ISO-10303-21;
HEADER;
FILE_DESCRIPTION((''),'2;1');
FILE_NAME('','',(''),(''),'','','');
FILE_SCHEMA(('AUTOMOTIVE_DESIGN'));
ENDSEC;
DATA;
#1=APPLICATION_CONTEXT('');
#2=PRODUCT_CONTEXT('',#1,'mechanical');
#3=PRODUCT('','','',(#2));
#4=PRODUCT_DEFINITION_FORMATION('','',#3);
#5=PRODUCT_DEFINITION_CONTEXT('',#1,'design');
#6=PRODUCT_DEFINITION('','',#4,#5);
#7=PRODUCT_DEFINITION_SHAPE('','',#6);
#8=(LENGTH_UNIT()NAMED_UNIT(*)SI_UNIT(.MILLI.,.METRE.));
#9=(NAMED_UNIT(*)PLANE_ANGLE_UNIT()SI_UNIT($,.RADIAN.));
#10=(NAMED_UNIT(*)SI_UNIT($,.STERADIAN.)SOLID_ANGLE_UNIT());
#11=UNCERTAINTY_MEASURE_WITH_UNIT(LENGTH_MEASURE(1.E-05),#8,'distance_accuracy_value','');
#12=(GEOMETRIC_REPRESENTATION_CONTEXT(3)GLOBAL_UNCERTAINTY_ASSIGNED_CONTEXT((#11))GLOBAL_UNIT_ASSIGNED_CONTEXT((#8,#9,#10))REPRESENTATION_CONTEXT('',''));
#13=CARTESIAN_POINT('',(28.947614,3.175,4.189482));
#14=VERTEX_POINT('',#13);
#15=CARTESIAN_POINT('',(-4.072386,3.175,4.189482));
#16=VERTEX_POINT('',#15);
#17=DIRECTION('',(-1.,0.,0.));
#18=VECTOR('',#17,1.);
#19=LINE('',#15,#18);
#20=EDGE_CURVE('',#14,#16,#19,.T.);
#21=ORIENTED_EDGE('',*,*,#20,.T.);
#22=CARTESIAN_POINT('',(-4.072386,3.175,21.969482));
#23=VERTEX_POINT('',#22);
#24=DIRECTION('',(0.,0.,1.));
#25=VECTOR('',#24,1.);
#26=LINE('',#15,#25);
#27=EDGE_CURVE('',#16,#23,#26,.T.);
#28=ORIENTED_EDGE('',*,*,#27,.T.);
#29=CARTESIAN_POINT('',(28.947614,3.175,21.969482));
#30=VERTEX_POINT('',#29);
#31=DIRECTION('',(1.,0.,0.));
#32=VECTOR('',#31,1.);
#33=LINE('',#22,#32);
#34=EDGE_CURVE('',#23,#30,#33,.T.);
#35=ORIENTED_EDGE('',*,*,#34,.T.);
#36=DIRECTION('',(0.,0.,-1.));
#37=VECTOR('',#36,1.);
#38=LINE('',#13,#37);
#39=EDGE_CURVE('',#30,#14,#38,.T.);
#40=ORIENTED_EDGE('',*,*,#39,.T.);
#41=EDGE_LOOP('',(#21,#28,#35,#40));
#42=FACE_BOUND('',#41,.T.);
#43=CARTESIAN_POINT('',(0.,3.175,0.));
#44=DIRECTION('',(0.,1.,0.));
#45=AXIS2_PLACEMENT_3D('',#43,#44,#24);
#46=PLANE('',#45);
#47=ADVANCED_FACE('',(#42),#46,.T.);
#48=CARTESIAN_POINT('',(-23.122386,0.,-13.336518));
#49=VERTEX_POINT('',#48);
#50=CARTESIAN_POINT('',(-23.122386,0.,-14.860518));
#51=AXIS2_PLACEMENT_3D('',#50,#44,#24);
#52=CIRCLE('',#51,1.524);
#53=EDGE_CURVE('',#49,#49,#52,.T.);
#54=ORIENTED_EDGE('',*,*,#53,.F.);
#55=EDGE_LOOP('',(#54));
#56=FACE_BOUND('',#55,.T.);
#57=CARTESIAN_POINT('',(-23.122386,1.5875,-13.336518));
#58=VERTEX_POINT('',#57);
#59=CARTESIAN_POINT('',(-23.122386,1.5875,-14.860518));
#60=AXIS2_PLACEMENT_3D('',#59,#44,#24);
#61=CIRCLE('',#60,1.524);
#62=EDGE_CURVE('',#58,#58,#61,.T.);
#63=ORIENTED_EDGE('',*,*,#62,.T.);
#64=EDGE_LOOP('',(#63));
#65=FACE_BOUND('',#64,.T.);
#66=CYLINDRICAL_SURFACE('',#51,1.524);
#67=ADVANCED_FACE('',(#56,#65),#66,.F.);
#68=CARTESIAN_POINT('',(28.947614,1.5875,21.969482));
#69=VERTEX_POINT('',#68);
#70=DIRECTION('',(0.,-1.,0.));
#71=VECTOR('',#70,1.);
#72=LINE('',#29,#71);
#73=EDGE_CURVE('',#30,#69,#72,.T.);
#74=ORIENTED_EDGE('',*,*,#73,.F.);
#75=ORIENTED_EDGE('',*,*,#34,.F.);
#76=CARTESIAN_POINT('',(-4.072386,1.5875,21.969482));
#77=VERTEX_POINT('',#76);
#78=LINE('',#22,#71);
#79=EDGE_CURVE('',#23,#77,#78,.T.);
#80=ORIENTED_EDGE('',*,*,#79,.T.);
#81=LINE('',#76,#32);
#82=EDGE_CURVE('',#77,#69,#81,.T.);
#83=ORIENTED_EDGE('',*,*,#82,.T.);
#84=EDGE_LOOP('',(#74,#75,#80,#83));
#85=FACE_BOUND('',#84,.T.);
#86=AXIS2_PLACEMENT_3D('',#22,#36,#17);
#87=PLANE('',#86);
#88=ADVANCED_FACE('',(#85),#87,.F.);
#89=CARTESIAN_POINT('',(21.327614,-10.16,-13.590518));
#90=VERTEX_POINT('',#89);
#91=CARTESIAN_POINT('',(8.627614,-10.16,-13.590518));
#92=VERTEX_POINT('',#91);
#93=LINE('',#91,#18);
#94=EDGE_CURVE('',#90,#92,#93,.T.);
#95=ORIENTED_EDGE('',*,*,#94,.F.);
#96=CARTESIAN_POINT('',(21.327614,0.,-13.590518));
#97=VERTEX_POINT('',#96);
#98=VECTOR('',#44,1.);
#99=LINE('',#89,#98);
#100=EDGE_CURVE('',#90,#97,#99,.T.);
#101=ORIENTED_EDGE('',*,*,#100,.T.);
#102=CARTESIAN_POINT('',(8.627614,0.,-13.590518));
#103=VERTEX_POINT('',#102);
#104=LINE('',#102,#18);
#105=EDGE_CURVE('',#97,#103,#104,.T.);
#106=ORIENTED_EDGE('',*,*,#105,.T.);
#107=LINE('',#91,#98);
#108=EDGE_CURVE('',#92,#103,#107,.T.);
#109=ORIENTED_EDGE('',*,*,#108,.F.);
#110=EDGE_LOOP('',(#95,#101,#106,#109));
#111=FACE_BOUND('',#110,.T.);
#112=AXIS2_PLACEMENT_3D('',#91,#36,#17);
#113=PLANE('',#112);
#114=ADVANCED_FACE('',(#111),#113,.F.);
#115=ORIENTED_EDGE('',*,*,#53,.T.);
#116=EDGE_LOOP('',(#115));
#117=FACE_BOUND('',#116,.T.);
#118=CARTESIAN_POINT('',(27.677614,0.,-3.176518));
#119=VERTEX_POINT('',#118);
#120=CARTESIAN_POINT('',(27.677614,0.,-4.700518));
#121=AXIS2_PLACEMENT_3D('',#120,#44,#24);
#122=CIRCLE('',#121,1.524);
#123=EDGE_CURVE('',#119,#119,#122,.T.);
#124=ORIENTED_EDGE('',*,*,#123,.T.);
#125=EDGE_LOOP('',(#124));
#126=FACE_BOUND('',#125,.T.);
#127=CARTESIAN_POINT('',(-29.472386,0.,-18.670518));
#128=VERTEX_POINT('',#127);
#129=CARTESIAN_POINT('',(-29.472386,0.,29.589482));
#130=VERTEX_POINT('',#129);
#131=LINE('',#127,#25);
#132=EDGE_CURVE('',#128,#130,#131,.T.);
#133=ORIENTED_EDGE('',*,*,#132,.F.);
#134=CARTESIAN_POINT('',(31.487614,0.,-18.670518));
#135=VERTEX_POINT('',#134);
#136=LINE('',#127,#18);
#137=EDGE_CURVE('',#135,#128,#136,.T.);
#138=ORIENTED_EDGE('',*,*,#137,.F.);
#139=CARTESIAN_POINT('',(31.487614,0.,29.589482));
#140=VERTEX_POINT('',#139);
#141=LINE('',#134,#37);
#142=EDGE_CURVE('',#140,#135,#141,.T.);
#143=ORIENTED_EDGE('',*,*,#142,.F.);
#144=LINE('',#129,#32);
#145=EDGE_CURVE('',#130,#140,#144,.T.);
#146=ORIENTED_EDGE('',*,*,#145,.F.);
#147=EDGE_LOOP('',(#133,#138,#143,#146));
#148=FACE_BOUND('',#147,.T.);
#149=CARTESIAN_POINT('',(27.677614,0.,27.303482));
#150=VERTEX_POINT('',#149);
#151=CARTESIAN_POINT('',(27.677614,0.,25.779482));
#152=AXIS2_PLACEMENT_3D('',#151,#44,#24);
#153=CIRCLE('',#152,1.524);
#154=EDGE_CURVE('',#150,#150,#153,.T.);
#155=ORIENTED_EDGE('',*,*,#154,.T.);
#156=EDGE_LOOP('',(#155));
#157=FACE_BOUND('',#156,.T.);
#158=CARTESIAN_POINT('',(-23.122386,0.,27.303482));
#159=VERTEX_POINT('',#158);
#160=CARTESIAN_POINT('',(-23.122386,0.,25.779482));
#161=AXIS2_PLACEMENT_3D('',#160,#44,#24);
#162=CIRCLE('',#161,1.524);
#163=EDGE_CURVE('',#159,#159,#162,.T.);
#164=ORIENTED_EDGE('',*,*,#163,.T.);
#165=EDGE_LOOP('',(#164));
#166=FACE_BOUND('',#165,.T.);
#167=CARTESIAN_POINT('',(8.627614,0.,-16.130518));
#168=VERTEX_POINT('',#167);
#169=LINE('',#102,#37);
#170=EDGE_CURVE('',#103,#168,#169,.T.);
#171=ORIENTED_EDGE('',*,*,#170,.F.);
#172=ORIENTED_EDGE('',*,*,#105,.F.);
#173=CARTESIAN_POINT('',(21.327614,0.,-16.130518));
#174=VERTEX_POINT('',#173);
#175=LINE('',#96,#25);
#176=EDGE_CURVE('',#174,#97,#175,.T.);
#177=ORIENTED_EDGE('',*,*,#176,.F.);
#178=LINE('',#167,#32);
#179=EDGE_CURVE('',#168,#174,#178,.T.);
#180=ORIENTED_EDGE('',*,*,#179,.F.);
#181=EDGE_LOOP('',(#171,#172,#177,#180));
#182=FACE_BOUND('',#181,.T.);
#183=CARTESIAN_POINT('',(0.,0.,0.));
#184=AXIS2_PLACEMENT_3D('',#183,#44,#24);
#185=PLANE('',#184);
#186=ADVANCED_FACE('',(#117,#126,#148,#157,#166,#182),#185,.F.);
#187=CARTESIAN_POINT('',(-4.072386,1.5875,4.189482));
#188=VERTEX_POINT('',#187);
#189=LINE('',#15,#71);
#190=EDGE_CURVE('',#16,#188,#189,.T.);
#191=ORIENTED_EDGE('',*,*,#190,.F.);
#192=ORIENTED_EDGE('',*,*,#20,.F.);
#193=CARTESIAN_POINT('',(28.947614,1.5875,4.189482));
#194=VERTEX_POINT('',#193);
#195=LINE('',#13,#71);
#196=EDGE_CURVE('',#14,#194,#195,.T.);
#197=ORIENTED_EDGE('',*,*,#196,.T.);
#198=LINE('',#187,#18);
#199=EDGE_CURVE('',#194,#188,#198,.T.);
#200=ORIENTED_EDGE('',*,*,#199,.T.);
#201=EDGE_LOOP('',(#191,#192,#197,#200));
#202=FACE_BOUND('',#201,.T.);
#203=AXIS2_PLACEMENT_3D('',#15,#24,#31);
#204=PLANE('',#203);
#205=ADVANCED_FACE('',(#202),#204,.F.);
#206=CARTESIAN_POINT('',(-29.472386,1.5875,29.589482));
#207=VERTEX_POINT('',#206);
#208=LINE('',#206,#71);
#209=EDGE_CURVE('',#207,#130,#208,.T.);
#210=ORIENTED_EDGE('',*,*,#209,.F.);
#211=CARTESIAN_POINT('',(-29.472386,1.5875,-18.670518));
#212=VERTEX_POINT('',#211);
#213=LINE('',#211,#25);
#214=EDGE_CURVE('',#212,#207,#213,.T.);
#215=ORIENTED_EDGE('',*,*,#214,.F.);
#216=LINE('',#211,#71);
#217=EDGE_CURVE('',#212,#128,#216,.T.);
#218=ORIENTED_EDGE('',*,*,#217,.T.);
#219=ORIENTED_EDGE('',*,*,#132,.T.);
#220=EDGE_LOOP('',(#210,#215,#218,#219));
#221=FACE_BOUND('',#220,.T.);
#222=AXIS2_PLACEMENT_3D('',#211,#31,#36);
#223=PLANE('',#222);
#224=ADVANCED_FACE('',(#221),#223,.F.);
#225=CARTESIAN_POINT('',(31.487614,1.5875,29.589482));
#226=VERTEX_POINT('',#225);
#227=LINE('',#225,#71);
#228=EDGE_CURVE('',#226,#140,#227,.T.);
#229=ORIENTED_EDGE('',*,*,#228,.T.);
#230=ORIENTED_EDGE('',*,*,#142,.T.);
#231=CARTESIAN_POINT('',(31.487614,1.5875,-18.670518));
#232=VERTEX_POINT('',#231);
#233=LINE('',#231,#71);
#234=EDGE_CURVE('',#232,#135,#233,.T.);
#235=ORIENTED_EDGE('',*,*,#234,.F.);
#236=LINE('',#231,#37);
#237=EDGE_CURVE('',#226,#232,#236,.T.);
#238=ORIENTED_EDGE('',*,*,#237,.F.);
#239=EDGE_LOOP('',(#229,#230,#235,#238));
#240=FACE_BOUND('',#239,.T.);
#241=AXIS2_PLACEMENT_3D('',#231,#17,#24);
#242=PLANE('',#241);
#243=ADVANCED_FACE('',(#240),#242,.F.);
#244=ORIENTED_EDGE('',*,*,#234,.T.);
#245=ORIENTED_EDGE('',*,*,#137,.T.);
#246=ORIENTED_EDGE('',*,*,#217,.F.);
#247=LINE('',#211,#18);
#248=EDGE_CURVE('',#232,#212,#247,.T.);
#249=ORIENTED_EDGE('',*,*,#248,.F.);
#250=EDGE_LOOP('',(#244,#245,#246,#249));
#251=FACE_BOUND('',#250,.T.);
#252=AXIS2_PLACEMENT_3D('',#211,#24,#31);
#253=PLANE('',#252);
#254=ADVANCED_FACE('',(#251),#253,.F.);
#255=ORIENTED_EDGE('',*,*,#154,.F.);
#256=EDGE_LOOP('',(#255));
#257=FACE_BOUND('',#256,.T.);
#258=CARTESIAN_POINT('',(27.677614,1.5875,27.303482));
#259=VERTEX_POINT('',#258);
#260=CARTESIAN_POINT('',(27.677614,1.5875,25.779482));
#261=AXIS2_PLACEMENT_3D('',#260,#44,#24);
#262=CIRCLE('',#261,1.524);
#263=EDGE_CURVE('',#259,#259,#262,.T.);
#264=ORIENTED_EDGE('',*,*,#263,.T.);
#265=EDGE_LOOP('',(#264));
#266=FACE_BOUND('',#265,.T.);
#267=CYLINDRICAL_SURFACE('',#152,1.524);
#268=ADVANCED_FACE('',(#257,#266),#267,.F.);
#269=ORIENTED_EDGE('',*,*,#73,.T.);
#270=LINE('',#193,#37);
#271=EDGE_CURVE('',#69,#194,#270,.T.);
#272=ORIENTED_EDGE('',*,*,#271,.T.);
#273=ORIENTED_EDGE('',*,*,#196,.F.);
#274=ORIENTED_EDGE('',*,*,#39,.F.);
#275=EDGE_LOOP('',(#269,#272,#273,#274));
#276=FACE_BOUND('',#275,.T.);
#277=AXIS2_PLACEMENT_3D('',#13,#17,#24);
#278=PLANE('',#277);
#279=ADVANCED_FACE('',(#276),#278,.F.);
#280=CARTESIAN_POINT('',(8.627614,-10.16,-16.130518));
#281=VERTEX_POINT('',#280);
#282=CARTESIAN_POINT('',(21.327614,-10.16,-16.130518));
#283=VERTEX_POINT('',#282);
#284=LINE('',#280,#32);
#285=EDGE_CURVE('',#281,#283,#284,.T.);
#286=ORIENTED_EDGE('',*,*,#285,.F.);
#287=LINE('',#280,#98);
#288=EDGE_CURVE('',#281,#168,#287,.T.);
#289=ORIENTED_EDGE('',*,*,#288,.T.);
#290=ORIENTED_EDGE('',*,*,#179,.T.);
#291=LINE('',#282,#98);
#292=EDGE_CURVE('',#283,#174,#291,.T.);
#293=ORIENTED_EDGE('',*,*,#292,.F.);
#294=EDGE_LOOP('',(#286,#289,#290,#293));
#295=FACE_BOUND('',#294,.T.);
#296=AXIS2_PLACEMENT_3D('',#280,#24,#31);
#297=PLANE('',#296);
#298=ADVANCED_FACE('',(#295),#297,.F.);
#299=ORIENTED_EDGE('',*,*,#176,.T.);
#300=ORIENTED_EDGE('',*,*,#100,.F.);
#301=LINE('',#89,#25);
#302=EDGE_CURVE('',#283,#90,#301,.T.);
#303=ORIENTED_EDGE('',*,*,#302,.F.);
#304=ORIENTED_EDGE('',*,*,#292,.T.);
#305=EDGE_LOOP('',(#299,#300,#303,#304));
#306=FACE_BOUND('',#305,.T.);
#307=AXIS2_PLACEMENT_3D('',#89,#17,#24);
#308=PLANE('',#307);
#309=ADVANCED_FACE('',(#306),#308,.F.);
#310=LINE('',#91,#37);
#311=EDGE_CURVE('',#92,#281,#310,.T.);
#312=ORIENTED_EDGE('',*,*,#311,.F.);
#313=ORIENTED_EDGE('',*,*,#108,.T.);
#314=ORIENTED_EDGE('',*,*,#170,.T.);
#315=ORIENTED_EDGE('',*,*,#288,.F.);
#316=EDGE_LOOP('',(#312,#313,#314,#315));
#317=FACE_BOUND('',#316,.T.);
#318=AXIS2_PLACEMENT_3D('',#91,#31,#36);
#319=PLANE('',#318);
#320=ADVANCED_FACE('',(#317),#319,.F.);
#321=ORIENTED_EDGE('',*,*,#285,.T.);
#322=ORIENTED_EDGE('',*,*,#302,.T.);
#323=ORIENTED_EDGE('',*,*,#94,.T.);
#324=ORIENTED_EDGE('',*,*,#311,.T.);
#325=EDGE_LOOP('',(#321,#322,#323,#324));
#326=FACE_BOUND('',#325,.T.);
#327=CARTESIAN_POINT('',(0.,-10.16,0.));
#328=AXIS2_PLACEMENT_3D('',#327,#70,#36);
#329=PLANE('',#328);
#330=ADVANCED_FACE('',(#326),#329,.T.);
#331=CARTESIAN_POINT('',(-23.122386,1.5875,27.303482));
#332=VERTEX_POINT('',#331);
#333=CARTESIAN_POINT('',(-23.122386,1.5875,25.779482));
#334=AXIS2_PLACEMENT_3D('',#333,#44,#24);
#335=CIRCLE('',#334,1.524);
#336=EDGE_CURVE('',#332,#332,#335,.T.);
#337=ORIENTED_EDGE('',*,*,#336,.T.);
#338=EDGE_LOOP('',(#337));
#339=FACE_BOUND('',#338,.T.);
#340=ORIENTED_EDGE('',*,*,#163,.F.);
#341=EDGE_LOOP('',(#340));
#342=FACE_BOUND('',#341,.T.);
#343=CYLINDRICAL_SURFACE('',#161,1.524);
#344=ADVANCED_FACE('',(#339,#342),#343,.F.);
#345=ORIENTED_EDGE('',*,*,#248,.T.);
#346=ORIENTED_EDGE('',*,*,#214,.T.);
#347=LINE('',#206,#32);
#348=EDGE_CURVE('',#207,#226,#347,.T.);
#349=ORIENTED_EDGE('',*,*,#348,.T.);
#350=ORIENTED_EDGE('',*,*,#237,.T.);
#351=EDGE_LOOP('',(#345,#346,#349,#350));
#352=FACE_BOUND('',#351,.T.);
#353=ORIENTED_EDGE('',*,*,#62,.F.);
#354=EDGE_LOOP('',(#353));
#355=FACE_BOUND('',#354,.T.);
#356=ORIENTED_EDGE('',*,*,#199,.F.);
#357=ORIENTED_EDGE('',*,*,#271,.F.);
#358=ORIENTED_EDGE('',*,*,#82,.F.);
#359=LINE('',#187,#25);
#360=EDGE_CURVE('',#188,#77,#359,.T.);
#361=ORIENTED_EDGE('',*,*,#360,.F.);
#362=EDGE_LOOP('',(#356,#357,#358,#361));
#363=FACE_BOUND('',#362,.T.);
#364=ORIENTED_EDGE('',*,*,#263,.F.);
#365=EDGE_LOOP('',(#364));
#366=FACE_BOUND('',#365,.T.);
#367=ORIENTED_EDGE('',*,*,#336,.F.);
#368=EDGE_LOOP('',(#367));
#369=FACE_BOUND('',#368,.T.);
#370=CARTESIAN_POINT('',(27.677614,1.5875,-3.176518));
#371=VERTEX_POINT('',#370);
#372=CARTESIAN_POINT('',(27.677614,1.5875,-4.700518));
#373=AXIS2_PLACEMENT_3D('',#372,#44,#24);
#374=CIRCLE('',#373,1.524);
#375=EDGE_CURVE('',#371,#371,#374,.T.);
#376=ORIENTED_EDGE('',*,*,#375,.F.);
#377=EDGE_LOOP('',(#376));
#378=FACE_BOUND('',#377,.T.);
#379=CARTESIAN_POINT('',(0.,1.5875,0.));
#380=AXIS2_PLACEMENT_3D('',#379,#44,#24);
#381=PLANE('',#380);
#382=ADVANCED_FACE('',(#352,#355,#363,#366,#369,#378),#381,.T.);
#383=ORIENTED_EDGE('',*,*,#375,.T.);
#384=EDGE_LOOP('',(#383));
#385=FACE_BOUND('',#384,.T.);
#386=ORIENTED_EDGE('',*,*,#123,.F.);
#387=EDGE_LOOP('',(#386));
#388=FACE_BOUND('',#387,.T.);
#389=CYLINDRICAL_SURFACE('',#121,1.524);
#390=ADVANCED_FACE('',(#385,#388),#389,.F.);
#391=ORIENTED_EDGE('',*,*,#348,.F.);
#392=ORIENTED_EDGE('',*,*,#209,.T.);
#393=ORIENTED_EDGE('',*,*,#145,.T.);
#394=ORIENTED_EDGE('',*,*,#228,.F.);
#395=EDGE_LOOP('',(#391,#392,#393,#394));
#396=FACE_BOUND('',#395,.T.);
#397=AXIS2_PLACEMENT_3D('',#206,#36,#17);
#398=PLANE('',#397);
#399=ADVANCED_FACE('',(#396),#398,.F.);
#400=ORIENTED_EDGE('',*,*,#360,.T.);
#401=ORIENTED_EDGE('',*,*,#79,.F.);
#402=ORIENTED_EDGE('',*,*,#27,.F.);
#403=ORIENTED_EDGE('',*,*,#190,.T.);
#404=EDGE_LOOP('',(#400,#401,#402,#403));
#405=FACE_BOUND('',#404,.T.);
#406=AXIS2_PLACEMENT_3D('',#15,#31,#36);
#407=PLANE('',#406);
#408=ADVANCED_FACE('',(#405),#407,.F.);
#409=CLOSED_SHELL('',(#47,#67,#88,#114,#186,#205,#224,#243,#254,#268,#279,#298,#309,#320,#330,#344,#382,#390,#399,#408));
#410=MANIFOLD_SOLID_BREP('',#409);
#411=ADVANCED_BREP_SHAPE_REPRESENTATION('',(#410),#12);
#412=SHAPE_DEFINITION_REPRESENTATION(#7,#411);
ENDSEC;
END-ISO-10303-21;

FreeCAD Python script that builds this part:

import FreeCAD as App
import Part
import Sketcher

V = App.Vector
Q = App.Units.Quantity

doc = App.newDocument("Part")
params = doc.addObject("Spreadsheet::Sheet", "Params")
for row, (alias, value) in enumerate([
    ("sketch1_width", "2.4 in"),
    ("sketch1_height", "1.9 in"),
    ("pad1_length", "0.0625 in"),
    ("sketch2_width", "1.3 in"),
    ("sketch2_height", "0.7 in"),
    ("pad2_length", "0.0625 in"),
    ("sketch3_diameter", "0.12 in"),
    ("sketch4_width", "0.5 in"),
    ("sketch4_height", "0.1 in"),
    ("pad3_length", "0.4 in"),
], start=1):
    params.set(f"A{row}", alias)
    params.set(f"B{row}", "=" + value)
    params.setAlias(f"B{row}", alias)

body = doc.addObject("PartDesign::Body", "Body")

# Sketch on XZ plane
sketch1 = body.newObject("Sketcher::SketchObject", "Sketch")
sketch1.AttachmentSupport = (doc.getObject("XZ_Plane"), [""])
sketch1.MapMode = "FlatFace"
sketch1.addGeometry([
    Part.LineSegment(V(-29.472386, -18.670518, 0), V(-29.472386, 29.589482, 0)),
    Part.LineSegment(V(-29.472386, 29.589482, 0), V(31.487614, 29.589482, 0)),
    Part.LineSegment(V(31.487614, 29.589482, 0), V(31.487614, -18.670518, 0)),
    Part.LineSegment(V(31.487614, -18.670518, 0), V(-29.472386, -18.670518, 0)),
], False)
sketch1.addConstraint([
    Sketcher.Constraint("Coincident", 0, 2, 1, 1),
    Sketcher.Constraint("Coincident", 1, 2, 2, 1),
    Sketcher.Constraint("Coincident", 2, 2, 3, 1),
    Sketcher.Constraint("Coincident", 3, 2, 0, 1),
    Sketcher.Constraint("Vertical", 0),
    Sketcher.Constraint("Horizontal", 1),
    Sketcher.Constraint("Vertical", 2),
    Sketcher.Constraint("Horizontal", 3),
    Sketcher.Constraint("DistanceX", 1, 1, 1, 2, Q("2.4 in")),
    Sketcher.Constraint("DistanceY", 0, 1, 0, 2, Q("1.9 in")),
    Sketcher.Constraint("DistanceX", 0, 2, -1, 1, 29.472386),
    Sketcher.Constraint("DistanceY", -1, 1, 0, 2, 29.589482),
])
sketch1.setExpression("Constraints[8]", "Params.sketch1_width")
sketch1.setExpression("Constraints[9]", "Params.sketch1_height")
pad1 = body.newObject("PartDesign::Pad", "Pad")
pad1.Profile = sketch1
pad1.setExpression("Length", "Params.pad1_length")
pad1.Reversed = True

# Sketch on XZ plane
sketch2 = body.newObject("Sketcher::SketchObject", "Sketch001")
sketch2.AttachmentSupport = (doc.getObject("XZ_Plane"), [""])
sketch2.MapMode = "FlatFace"
sketch2.AttachmentOffset = App.Placement(V(0, 0, -0.0625 * 25.4), App.Rotation())
sketch2.addGeometry([
    Part.LineSegment(V(-4.072386, 4.189482, 0), V(-4.072386, 21.969482, 0)),
    Part.LineSegment(V(-4.072386, 21.969482, 0), V(28.947614, 21.969482, 0)),
    Part.LineSegment(V(28.947614, 21.969482, 0), V(28.947614, 4.189482, 0)),
    Part.LineSegment(V(28.947614, 4.189482, 0), V(-4.072386, 4.189482, 0)),
], False)
sketch2.addConstraint([
    Sketcher.Constraint("Coincident", 0, 2, 1, 1),
    Sketcher.Constraint("Coincident", 1, 2, 2, 1),
    Sketcher.Constraint("Coincident", 2, 2, 3, 1),
    Sketcher.Constraint("Coincident", 3, 2, 0, 1),
    Sketcher.Constraint("Vertical", 0),
    Sketcher.Constraint("Horizontal", 1),
    Sketcher.Constraint("Vertical", 2),
    Sketcher.Constraint("Horizontal", 3),
    Sketcher.Constraint("DistanceX", 1, 1, 1, 2, Q("1.3 in")),
    Sketcher.Constraint("DistanceY", 0, 1, 0, 2, Q("0.7 in")),
    Sketcher.Constraint("DistanceX", 0, 2, -1, 1, 4.072386),
    Sketcher.Constraint("DistanceY", -1, 1, 0, 2, 21.969482),
])
sketch2.setExpression("Constraints[8]", "Params.sketch2_width")
sketch2.setExpression("Constraints[9]", "Params.sketch2_height")
pad2 = body.newObject("PartDesign::Pad", "Pad001")
pad2.Profile = sketch2
pad2.setExpression("Length", "Params.pad2_length")
pad2.Reversed = True

# Sketch on XZ plane
sketch3 = body.newObject("Sketcher::SketchObject", "Sketch002")
sketch3.AttachmentSupport = (doc.getObject("XZ_Plane"), [""])
sketch3.MapMode = "FlatFace"
sketch3.AttachmentOffset = App.Placement(V(0, 0, -0.0625 * 25.4), App.Rotation())
sketch3.addGeometry([
    Part.Circle(V(-23.122386, -14.860518, 0), V(0, 0, 1), 1.524),
    Part.Circle(V(27.677614, -4.700518, 0), V(0, 0, 1), 1.524),
    Part.Circle(V(-23.122386, 25.779482, 0), V(0, 0, 1), 1.524),
    Part.Circle(V(27.677614, 25.779482, 0), V(0, 0, 1), 1.524),
], False)
sketch3.addConstraint([
    Sketcher.Constraint("Equal", 0, 1),
    Sketcher.Constraint("Equal", 1, 2),
    Sketcher.Constraint("Equal", 2, 3),
    Sketcher.Constraint("Horizontal", 2, 3, 3, 3),
    Sketcher.Constraint("Vertical", 0, 3, 2, 3),
    Sketcher.Constraint("Vertical", 1, 3, 3, 3),
    Sketcher.Constraint("Diameter", 0, Q("0.12 in")),
    Sketcher.Constraint("DistanceX", 0, 3, 1, 3, Q("2 in")),
    Sketcher.Constraint("DistanceY", 0, 3, 1, 3, Q("0.4 in")),
    Sketcher.Constraint("DistanceY", 0, 3, 2, 3, Q("1.6 in")),
    Sketcher.Constraint("DistanceX", 0, 3, -1, 1, 23.122386),
    Sketcher.Constraint("DistanceY", 0, 3, -1, 1, 14.860518),
])
sketch3.setExpression("Constraints[6]", "Params.sketch3_diameter")
pocket1 = body.newObject("PartDesign::Pocket", "Pocket")
pocket1.Profile = sketch3
pocket1.Type = "ThroughAll"
pocket1.Reversed = True

# Sketch on XZ plane
sketch4 = body.newObject("Sketcher::SketchObject", "Sketch003")
sketch4.AttachmentSupport = (doc.getObject("XZ_Plane"), [""])
sketch4.MapMode = "FlatFace"
sketch4.addGeometry([
    Part.LineSegment(V(21.327614, -16.130518, 0), V(21.327614, -13.590518, 0)),
    Part.LineSegment(V(21.327614, -13.590518, 0), V(8.627614, -13.590518, 0)),
    Part.LineSegment(V(8.627614, -13.590518, 0), V(8.627614, -16.130518, 0)),
    Part.LineSegment(V(8.627614, -16.130518, 0), V(21.327614, -16.130518, 0)),
], False)
sketch4.addConstraint([
    Sketcher.Constraint("Coincident", 0, 2, 1, 1),
    Sketcher.Constraint("Coincident", 1, 2, 2, 1),
    Sketcher.Constraint("Coincident", 2, 2, 3, 1),
    Sketcher.Constraint("Coincident", 3, 2, 0, 1),
    Sketcher.Constraint("Vertical", 0),
    Sketcher.Constraint("Horizontal", 1),
    Sketcher.Constraint("Vertical", 2),
    Sketcher.Constraint("Horizontal", 3),
    Sketcher.Constraint("DistanceX", 1, 2, 1, 1, Q("0.5 in")),
    Sketcher.Constraint("DistanceY", 0, 1, 0, 2, Q("0.1 in")),
    Sketcher.Constraint("DistanceX", -1, 1, 0, 2, 21.327614),
    Sketcher.Constraint("DistanceY", 0, 2, -1, 1, 13.590518),
])
sketch4.setExpression("Constraints[8]", "Params.sketch4_width")
sketch4.setExpression("Constraints[9]", "Params.sketch4_height")
pad3 = body.newObject("PartDesign::Pad", "Pad002")
pad3.Profile = sketch4
pad3.setExpression("Length", "Params.pad3_length")

doc.recompute()
